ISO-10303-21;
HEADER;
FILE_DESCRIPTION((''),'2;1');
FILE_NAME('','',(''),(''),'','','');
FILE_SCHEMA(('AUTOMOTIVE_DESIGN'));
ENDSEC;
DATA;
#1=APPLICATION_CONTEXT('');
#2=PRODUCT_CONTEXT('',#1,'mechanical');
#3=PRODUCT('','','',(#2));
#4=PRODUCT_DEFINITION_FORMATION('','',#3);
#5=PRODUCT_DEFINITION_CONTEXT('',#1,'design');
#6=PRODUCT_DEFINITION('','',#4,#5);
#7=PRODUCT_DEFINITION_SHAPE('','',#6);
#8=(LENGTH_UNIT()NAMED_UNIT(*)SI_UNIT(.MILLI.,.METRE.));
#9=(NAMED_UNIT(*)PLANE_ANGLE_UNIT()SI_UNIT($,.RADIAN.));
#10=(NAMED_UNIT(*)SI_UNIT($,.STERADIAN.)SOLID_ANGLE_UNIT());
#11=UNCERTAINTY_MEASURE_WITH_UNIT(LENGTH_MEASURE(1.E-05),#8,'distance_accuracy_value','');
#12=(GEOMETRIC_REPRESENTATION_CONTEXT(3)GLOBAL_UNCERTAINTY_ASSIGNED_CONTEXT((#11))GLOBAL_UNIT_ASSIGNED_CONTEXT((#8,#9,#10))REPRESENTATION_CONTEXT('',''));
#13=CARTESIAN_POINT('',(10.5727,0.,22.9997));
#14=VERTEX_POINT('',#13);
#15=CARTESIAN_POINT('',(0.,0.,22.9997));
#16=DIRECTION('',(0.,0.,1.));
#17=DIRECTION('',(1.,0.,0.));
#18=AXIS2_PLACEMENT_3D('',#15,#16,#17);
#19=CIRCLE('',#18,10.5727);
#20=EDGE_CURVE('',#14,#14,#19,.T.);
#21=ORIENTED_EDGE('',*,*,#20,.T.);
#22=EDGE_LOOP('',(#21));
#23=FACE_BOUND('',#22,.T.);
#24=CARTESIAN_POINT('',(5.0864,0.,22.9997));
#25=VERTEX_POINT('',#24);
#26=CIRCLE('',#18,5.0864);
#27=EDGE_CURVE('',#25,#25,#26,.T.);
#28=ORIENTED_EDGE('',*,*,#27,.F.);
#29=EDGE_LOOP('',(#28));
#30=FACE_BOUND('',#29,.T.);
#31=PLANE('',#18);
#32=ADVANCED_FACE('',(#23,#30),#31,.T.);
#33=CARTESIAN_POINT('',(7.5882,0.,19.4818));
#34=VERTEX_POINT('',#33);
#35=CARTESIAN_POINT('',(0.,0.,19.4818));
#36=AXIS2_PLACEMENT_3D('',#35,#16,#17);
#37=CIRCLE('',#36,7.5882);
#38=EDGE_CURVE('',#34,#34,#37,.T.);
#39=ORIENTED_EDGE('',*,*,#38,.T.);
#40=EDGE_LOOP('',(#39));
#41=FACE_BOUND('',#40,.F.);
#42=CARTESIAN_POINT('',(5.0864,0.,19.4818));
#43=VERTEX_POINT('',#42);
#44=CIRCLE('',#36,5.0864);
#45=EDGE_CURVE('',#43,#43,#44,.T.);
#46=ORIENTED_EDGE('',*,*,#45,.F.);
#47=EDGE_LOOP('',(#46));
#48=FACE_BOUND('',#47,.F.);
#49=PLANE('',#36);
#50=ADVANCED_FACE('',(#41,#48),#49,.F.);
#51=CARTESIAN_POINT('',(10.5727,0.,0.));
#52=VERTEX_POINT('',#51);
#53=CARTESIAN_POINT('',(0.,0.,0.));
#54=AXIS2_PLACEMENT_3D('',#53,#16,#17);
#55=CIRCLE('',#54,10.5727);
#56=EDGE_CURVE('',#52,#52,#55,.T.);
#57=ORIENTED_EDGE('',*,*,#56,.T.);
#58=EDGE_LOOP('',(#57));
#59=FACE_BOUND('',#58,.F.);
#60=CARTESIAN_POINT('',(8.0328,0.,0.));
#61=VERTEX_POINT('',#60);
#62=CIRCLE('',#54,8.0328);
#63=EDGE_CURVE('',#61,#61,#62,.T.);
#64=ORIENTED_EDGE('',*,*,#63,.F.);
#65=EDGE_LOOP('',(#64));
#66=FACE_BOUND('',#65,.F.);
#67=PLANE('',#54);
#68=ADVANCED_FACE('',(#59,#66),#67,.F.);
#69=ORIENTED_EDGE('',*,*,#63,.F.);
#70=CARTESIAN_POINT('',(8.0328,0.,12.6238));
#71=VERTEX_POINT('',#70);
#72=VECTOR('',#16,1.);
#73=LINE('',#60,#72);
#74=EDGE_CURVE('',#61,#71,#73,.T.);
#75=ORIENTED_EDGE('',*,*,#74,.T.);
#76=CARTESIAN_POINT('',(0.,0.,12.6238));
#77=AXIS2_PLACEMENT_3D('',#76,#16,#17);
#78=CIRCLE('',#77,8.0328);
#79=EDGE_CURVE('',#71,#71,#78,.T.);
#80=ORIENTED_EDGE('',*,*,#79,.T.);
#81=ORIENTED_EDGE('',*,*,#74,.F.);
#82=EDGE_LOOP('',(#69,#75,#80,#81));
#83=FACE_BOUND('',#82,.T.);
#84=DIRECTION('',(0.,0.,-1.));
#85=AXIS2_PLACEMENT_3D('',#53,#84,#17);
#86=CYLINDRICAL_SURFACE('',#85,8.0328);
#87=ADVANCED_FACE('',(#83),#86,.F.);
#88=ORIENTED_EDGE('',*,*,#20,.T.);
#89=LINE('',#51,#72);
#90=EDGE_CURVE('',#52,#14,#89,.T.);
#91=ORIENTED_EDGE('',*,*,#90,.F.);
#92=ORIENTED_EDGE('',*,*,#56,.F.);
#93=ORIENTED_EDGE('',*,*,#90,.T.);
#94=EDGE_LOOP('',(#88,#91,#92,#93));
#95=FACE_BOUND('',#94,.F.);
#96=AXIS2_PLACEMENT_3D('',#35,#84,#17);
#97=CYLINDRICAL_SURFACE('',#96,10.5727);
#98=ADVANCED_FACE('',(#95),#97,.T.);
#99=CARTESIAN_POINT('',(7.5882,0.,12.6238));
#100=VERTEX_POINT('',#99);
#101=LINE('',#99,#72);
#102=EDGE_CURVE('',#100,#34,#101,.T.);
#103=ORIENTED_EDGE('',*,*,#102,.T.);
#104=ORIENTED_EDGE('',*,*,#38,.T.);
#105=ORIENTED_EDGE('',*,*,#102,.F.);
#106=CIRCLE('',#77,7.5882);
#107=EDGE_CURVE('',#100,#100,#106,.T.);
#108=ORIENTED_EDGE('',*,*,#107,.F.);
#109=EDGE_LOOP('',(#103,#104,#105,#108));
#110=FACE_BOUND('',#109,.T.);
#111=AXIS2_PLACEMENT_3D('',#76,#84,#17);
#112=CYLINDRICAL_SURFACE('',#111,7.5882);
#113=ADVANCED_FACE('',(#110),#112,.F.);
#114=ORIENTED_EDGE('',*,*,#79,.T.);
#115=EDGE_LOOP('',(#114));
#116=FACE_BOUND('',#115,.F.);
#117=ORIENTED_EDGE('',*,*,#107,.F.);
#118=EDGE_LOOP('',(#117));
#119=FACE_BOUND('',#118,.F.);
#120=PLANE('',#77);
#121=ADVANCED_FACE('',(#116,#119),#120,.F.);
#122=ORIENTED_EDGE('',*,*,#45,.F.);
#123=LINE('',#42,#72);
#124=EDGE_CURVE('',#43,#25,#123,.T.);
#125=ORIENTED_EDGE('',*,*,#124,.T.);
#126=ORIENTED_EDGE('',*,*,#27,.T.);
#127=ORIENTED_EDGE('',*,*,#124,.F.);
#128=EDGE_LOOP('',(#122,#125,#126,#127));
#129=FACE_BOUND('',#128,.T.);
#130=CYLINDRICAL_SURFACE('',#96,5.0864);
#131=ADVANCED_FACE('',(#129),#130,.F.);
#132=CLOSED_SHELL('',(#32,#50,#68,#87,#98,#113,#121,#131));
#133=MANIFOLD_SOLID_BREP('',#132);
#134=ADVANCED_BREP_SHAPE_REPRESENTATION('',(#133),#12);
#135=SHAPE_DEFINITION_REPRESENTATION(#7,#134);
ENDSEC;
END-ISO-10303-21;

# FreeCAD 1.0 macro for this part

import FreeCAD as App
import Part
import Sketcher
from FreeCAD import Vector
Q = App.Units.Quantity

doc = App.newDocument("Part")
body = doc.addObject("PartDesign::Body", "Body")

sketch1 = body.newObject("Sketcher::SketchObject", "Sketch")
sketch1.AttachmentSupport = (doc.getObject("XY_Plane"), [""])
sketch1.MapMode = "FlatFace"
sketch1.addGeometry([
    Part.Circle(Vector(0, 0, 0), Vector(0, 0, 1), 10.5727),
    Part.Circle(Vector(0, 0, 0), Vector(0, 0, 1), 8.0328),
], False)
sketch1.addConstraint([
    Sketcher.Constraint("Coincident", 0, 3, -1, 1),
    Sketcher.Constraint("Coincident", 1, 3, -1, 1),
    Sketcher.Constraint("Diameter", 1, Q("0.6325 in")),
    Sketcher.Constraint("Diameter", 0, Q("0.8325 in")),
])
pad1 = body.newObject("PartDesign::Pad", "Pad")
pad1.Profile = sketch1
pad1.Length = Q("0.25 in")

sketch2 = body.newObject("Sketcher::SketchObject", "Sketch001")
sketch2.AttachmentSupport = (doc.getObject("XY_Plane"), [""])
sketch2.MapMode = "FlatFace"
sketch2.AttachmentOffset = App.Placement(Vector(0, 0, 0.25 * 25.4), App.Rotation())
sketch2.addGeometry([
    Part.Circle(Vector(0, 0, 0), Vector(0, 0, 1), 10.5727),
    Part.Circle(Vector(0, 0, 0), Vector(0, 0, 1), 8.0328),
], False)
sketch2.addConstraint([
    Sketcher.Constraint("Coincident", 0, 3, -1, 1),
    Sketcher.Constraint("Coincident", 1, 3, -1, 1),
    Sketcher.Constraint("Diameter", 0, Q("0.8325 in")),
    Sketcher.Constraint("Diameter", 1, Q("0.6325 in")),
])
pad2 = body.newObject("PartDesign::Pad", "Pad001")
pad2.Profile = sketch2
pad2.Length = Q("0.247 in")

sketch3 = body.newObject("Sketcher::SketchObject", "Sketch002")
sketch3.AttachmentSupport = (doc.getObject("XY_Plane"), [""])
sketch3.MapMode = "FlatFace"
sketch3.AttachmentOffset = App.Placement(Vector(0, 0, 0.497 * 25.4), App.Rotation())
sketch3.addGeometry([
    Part.Circle(Vector(0, 0, 0), Vector(0, 0, 1), 10.5727),
    Part.Circle(Vector(0, 0, 0), Vector(0, 0, 1), 7.5882),
], False)
sketch3.addConstraint([
    Sketcher.Constraint("Coincident", 0, 3, -1, 1),
    Sketcher.Constraint("Coincident", 1, 3, -1, 1),
    Sketcher.Constraint("Diameter", 1, Q("0.5975 in")),
    Sketcher.Constraint("Diameter", 0, Q("0.8325 in")),
])
pad3 = body.newObject("PartDesign::Pad", "Pad002")
pad3.Profile = sketch3
pad3.Length = Q("0.27 in")

sketch4 = body.newObject("Sketcher::SketchObject", "Sketch003")
sketch4.AttachmentSupport = (doc.getObject("XY_Plane"), [""])
sketch4.MapMode = "FlatFace"
sketch4.AttachmentOffset = App.Placement(Vector(0, 0, 0.767 * 25.4), App.Rotation())
sketch4.addGeometry([
    Part.Circle(Vector(0, 0, 0), Vector(0, 0, 1), 10.5727),
    Part.Circle(Vector(0, 0, 0), Vector(0, 0, 1), 5.0864),
], False)
sketch4.addConstraint([
    Sketcher.Constraint("Coincident", 0, 3, -1, 1),
    Sketcher.Constraint("Coincident", 1, 3, -1, 1),
    Sketcher.Constraint("Diameter", 1, Q("0.4005 in")),
    Sketcher.Constraint("Diameter", 0, Q("0.8325 in")),
])
pad4 = body.newObject("PartDesign::Pad", "Pad003")
pad4.Profile = sketch4
pad4.Length = Q("0.1385 in")

doc.recompute()
